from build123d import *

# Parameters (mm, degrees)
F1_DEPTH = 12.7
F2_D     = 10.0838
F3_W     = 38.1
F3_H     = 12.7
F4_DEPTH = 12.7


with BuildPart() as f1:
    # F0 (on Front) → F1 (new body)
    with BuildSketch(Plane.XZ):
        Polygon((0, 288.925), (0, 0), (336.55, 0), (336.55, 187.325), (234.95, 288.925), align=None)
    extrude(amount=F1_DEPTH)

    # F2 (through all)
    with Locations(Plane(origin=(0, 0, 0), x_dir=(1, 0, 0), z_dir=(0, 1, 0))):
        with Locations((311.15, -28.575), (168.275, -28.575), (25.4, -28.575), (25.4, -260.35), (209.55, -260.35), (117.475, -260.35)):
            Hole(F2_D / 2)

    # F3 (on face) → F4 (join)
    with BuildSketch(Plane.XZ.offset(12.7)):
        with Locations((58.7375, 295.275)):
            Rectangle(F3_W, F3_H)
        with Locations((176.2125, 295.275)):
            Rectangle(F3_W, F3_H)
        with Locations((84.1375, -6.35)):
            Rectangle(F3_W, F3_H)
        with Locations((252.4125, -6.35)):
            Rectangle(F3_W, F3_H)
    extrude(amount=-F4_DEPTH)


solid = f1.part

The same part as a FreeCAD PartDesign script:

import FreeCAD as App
import Part
import Sketcher
from FreeCAD import Vector
Q = App.Units.Quantity


def add_polygon(sketch, points):
    """Adds a closed chain of lines whose ends are joined by coincident constraints."""
    first, n = sketch.GeometryCount, len(points)
    for a, b in zip(points, points[1:] + points[:1]):
        sketch.addGeometry(Part.LineSegment(App.Vector(*a, 0), App.Vector(*b, 0)), False)
    for i in range(n):
        sketch.addConstraint(Sketcher.Constraint("Coincident", first + i, 2, first + (i + 1) % n, 1))

doc = App.newDocument("Part")
body = doc.addObject("PartDesign::Body", "Body")

sketch1 = body.newObject("Sketcher::SketchObject", "Sketch")
sketch1.AttachmentSupport = (doc.getObject("XZ_Plane"), [""])
sketch1.MapMode = "FlatFace"
add_polygon(sketch1, [(0, 289), (0, 0), (337, 0), (337, 187), (235, 289)])
sketch1.addConstraint(Sketcher.Constraint("Vertical", 0))
sketch1.addConstraint(Sketcher.Constraint("Horizontal", 1))
sketch1.addConstraint(Sketcher.Constraint("Vertical", 2))
sketch1.addConstraint(Sketcher.Constraint("Horizontal", 4))
sketch1.addConstraint(Sketcher.Constraint("Coincident", 0, 2, -1, 1))
sketch1.addConstraint(Sketcher.Constraint("Angle", 3, Q("135 deg")))
sketch1.addConstraint(Sketcher.Constraint("DistanceX", 3, 2, 2, 2, Q("4 in")))
sketch1.addConstraint(Sketcher.Constraint("DistanceX", 1, 1, 1, 2, Q("13.25 in")))
sketch1.addConstraint(Sketcher.Constraint("DistanceY", 0, 2, 0, 1, Q("11.375 in")))
pad1 = body.newObject("PartDesign::Pad", "Pad")
pad1.Profile = sketch1
pad1.Length = Q("0.5 in")

sketch2 = body.newObject("Sketcher::SketchObject", "Sketch001")
sketch2.AttachmentSupport = (doc.getObject("XZ_Plane"), [""])
sketch2.MapMode = "FlatFace"
sketch2.addGeometry(Part.Circle(Vector(311, 29, 0), Vector(0, 0, 1), 5), False)
sketch2.addGeometry(Part.Circle(Vector(168, 29, 0), Vector(0, 0, 1), 5), False)
sketch2.addGeometry(Part.Circle(Vector(25, 29, 0), Vector(0, 0, 1), 5), False)
sketch2.addGeometry(Part.Circle(Vector(25, 260, 0), Vector(0, 0, 1), 5), False)
sketch2.addGeometry(Part.Circle(Vector(210, 260, 0), Vector(0, 0, 1), 5), False)
sketch2.addGeometry(Part.Circle(Vector(117, 260, 0), Vector(0, 0, 1), 5), False)
sketch2.addConstraint(Sketcher.Constraint("Equal", 0, 1))
sketch2.addConstraint(Sketcher.Constraint("Equal", 1, 2))
sketch2.addConstraint(Sketcher.Constraint("Equal", 2, 3))
sketch2.addConstraint(Sketcher.Constraint("Equal", 3, 4))
sketch2.addConstraint(Sketcher.Constraint("Equal", 4, 5))
sketch2.addConstraint(Sketcher.Constraint("Horizontal", 0, 3, 1, 3))
sketch2.addConstraint(Sketcher.Constraint("Horizontal", 1, 3, 2, 3))
sketch2.addConstraint(Sketcher.Constraint("Horizontal", 3, 3, 4, 3))
sketch2.addConstraint(Sketcher.Constraint("Horizontal", 4, 3, 5, 3))
sketch2.addConstraint(Sketcher.Constraint("Vertical", 2, 3, 3, 3))
sketch2.addConstraint(Sketcher.Constraint("Diameter", 0, Q("0.397 in")))
sketch2.addConstraint(Sketcher.Constraint("DistanceX", -1, 1, 2, 3, Q("1 in")))
sketch2.addConstraint(Sketcher.Constraint("DistanceX", 4, 3, 0, 3, Q("4 in")))
sketch2.addConstraint(Sketcher.Constraint("DistanceX", 5, 3, 1, 3, Q("2 in")))
sketch2.addConstraint(Sketcher.Constraint("DistanceX", -1, 1, 0, 3, Q("12.25 in")))
sketch2.addConstraint(Sketcher.Constraint("DistanceY", -1, 1, 3, 3, Q("10.25 in")))
sketch2.addConstraint(Sketcher.Constraint("DistanceY", -1, 1, 0, 3, Q("1.125 in")))
sketch2.addConstraint(Sketcher.Constraint("DistanceX", -1, 1, 1, 3, Q("6.625 in")))
doc.recompute()
hole = body.newObject("PartDesign::Hole", "Hole")
hole.Profile = sketch2
hole.ThreadType = "None"
hole.Diameter = Q("0.397 in")
hole.DepthType = "ThroughAll"
hole.Reversed = True

sketch3 = body.newObject("Sketcher::SketchObject", "Sketch002")
sketch3.AttachmentSupport = (doc.getObject("XZ_Plane"), [""])
sketch3.MapMode = "FlatFace"
sketch3.AttachmentOffset = App.Placement(Vector(0, 0, 0.5 * 25.4), App.Rotation())
add_polygon(sketch3, [(40, 302), (40, 289), (78, 289), (78, 302)])
add_polygon(sketch3, [(157, 302), (157, 289), (195, 289), (195, 302)])
add_polygon(sketch3, [(65, 0), (65, -13), (103, -13), (103, 0)])
add_polygon(sketch3, [(233, 0), (233, -13), (271, -13), (271, 0)])
sketch3.addConstraint(Sketcher.Constraint("Vertical", 0))
sketch3.addConstraint(Sketcher.Constraint("Horizontal", 1))
sketch3.addConstraint(Sketcher.Constraint("Vertical", 2))
sketch3.addConstraint(Sketcher.Constraint("Horizontal", 3))
sketch3.addConstraint(Sketcher.Constraint("Vertical", 4))
sketch3.addConstraint(Sketcher.Constraint("Horizontal", 5))
sketch3.addConstraint(Sketcher.Constraint("Vertical", 6))
sketch3.addConstraint(Sketcher.Constraint("Horizontal", 7))
sketch3.addConstraint(Sketcher.Constraint("Vertical", 8))
sketch3.addConstraint(Sketcher.Constraint("Horizontal", 9))
sketch3.addConstraint(Sketcher.Constraint("Vertical", 10))
sketch3.addConstraint(Sketcher.Constraint("Horizontal", 11))
sketch3.addConstraint(Sketcher.Constraint("Vertical", 12))
sketch3.addConstraint(Sketcher.Constraint("Horizontal", 13))
sketch3.addConstraint(Sketcher.Constraint("Vertical", 14))
sketch3.addConstraint(Sketcher.Constraint("Horizontal", 15))
sketch3.addConstraint(Sketcher.Constraint("PointOnObject", 10, 2, -1))
sketch3.addConstraint(Sketcher.Constraint("PointOnObject", 14, 2, -1))
sketch3.addConstraint(Sketcher.Constraint("Horizontal", 1, 2, 4, 2))
sketch3.addConstraint(Sketcher.Constraint("Horizontal", 3, 2, 6, 2))
sketch3.addConstraint(Sketcher.Constraint("Horizontal", 9, 2, 12, 2))
sketch3.addConstraint(Sketcher.Constraint("Equal", 3, 5))
sketch3.addConstraint(Sketcher.Constraint("Equal", 7, 9))
sketch3.addConstraint(Sketcher.Constraint("Equal", 11, 13))
sketch3.addConstraint(Sketcher.Constraint("Equal", 6, 8))
sketch3.addConstraint(Sketcher.Constraint("DistanceX", 1, 1, 1, 2, Q("1.5 in")))
sketch3.addConstraint(Sketcher.Constraint("DistanceY", 0, 2, 0, 1, Q("0.5 in")))
sketch3.addConstraint(Sketcher.Constraint("DistanceX", 0, 2, 8, 2, Q("1 in")))
sketch3.addConstraint(Sketcher.Constraint("DistanceX", 5, 2, 12, 2, Q("1.5 in")))
sketch3.addConstraint(Sketcher.Constraint("DistanceX", -1, 1, 0, 2, Q("1.5625 in")))
sketch3.addConstraint(Sketcher.Constraint("DistanceY", -1, 1, 0, 2, Q("11.375 in")))
sketch3.addConstraint(Sketcher.Constraint("DistanceX", -1, 1, 4, 2, Q("6.1875 in")))
pad2 = body.newObject("PartDesign::Pad", "Pad001")
pad2.Profile = sketch3
pad2.Length = Q("0.5 in")
pad2.Reversed = True

doc.recompute()
